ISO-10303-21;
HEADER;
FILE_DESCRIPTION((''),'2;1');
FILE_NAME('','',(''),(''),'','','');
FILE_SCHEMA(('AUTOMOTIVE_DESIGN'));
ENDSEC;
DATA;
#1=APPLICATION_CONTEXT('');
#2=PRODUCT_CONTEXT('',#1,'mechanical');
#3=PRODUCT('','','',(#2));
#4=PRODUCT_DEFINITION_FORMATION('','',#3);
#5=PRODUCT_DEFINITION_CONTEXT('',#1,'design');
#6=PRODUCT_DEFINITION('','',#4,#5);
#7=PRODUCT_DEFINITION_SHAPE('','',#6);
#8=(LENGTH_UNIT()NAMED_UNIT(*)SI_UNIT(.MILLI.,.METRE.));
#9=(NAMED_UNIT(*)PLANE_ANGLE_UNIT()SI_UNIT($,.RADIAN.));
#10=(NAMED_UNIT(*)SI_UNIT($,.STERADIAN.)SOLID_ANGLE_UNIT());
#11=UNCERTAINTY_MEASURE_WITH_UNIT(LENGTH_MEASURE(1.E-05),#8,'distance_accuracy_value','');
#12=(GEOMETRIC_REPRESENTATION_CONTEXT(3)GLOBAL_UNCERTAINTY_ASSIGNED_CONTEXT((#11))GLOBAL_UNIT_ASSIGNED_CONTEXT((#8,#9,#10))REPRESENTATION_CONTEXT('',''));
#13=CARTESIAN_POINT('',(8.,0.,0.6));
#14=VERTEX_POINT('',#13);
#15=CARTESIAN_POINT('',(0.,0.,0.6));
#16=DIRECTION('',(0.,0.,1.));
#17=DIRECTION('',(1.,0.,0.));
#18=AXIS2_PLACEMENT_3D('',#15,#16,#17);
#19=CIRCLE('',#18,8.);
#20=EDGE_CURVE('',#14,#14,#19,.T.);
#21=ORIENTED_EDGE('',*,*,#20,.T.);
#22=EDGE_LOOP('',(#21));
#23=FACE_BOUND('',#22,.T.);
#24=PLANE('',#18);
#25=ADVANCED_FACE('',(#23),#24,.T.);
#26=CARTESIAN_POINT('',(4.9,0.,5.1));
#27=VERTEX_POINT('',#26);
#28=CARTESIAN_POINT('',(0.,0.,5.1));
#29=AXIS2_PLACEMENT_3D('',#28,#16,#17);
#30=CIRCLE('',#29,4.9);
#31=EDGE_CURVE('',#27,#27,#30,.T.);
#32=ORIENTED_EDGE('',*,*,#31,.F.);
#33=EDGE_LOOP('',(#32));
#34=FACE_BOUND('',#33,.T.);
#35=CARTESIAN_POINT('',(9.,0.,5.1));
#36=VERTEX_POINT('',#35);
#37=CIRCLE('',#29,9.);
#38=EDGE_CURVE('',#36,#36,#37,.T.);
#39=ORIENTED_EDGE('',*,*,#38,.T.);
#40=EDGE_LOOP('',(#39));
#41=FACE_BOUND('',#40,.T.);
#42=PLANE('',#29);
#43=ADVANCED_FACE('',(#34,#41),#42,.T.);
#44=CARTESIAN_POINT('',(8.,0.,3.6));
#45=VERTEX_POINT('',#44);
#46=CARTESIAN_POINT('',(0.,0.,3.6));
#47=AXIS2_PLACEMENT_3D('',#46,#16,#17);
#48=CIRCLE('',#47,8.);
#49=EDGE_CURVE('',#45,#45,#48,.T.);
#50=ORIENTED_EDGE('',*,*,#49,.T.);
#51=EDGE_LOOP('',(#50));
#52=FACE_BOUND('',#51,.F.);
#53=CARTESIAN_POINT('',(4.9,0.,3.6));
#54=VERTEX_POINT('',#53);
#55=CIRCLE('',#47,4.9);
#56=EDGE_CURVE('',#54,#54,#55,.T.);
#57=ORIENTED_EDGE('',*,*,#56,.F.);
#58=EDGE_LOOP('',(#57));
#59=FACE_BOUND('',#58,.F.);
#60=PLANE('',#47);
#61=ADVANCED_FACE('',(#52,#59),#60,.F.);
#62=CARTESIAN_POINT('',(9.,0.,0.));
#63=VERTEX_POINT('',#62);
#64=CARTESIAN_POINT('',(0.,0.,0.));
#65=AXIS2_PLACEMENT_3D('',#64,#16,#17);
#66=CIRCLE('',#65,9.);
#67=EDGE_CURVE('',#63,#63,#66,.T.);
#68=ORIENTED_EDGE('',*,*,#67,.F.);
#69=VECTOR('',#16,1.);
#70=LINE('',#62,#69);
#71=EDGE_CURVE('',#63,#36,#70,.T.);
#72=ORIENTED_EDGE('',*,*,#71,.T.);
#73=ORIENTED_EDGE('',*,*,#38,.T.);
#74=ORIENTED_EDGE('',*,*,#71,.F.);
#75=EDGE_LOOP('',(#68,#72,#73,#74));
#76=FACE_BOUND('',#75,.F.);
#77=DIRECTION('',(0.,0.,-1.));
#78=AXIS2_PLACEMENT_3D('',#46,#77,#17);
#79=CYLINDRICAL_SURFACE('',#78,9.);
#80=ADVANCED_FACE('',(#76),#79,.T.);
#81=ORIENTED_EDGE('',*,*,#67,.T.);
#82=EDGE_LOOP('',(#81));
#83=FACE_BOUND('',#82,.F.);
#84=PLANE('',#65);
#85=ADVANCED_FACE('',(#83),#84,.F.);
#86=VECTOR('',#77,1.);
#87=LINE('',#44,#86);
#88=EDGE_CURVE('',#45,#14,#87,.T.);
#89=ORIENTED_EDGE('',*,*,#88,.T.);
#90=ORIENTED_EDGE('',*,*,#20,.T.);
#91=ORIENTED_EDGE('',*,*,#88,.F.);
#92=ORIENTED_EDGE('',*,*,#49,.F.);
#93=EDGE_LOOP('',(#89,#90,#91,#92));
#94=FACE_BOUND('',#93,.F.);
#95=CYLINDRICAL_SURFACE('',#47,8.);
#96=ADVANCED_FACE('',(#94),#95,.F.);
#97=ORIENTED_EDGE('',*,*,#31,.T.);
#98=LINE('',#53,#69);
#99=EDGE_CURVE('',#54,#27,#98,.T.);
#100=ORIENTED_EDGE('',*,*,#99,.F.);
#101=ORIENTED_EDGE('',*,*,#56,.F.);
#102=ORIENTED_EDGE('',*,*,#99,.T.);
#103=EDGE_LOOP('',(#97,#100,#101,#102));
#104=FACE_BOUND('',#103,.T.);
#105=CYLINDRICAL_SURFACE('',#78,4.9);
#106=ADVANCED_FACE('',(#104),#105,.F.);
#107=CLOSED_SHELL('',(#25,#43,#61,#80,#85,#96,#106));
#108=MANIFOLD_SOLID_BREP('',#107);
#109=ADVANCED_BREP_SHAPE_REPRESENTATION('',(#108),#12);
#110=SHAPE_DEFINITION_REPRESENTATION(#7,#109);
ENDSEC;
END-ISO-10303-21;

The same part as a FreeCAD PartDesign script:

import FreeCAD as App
import Part
import Sketcher

doc = App.newDocument("Part")
body = doc.addObject("PartDesign::Body", "Body")

# Sketch on XY plane
sketch1 = doc.addObject("Sketcher::SketchObject", "Sketch")
body.addObject(sketch1)
sketch1.AttachmentSupport = (doc.XY_Plane, [""])
sketch1.MapMode = "FlatFace"
sketch1.addGeometry(Part.Circle(App.Vector(0, 0, 0), App.Vector(0, 0, 1), 9), False)
sketch1.addConstraint([
    Sketcher.Constraint("Coincident", 0, 3, -1, 1),
    Sketcher.Constraint("Diameter", 0, 18.0),
])
pad1 = doc.addObject("PartDesign::Pad", "Pad")
body.addObject(pad1)
pad1.Profile = sketch1
pad1.Length = 3.6

# Sketch on XY plane
sketch2 = doc.addObject("Sketcher::SketchObject", "Sketch001")
body.addObject(sketch2)
sketch2.AttachmentSupport = (doc.XY_Plane, [""])
sketch2.MapMode = "FlatFace"
sketch2.AttachmentOffset = App.Placement(App.Vector(0, 0, 3.6), App.Rotation())
sketch2.addGeometry(Part.Circle(App.Vector(0, 0, 0), App.Vector(0, 0, 1), 8), False)
sketch2.addConstraint([
    Sketcher.Constraint("Coincident", 0, 3, -1, 1),
    Sketcher.Constraint("Diameter", 0, 16.0),
])
pocket1 = doc.addObject("PartDesign::Pocket", "Pocket")
body.addObject(pocket1)
pocket1.Profile = sketch2
pocket1.Length = 3

# Sketch on XY plane
sketch3 = doc.addObject("Sketcher::SketchObject", "Sketch002")
body.addObject(sketch3)
sketch3.AttachmentSupport = (doc.XY_Plane, [""])
sketch3.MapMode = "FlatFace"
sketch3.AttachmentOffset = App.Placement(App.Vector(0, 0, 3.6), App.Rotation())
sketch3.addGeometry([
    Part.Circle(App.Vector(0, 0, 0), App.Vector(0, 0, 1), 9),
    Part.Circle(App.Vector(0, 0, 0), App.Vector(0, 0, 1), 4.9),
], False)
sketch3.addConstraint([
    Sketcher.Constraint("Coincident", 0, 3, -1, 1),
    Sketcher.Constraint("Coincident", 1, 3, -1, 1),
    Sketcher.Constraint("Diameter", 0, 18.0),
    Sketcher.Constraint("Diameter", 1, 9.8),
])
pad2 = doc.addObject("PartDesign::Pad", "Pad001")
body.addObject(pad2)
pad2.Profile = sketch3
pad2.Length = 1.5

doc.recompute()
